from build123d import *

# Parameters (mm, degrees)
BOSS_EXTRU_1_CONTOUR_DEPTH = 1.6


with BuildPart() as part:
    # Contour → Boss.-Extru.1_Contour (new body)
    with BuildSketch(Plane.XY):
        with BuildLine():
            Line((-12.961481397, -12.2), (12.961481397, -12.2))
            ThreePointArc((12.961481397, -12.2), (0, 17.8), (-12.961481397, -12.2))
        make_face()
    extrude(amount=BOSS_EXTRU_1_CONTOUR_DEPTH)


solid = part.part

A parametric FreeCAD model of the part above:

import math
import FreeCAD as App
import Part
import Sketcher
from FreeCAD import Vector
Q = App.Units.Quantity

doc = App.newDocument("Part")
params = doc.addObject("Spreadsheet::Sheet", "Params")
for row, (alias, value) in enumerate([
    ("sketch1_radius", "17.8 mm"),
    ("pad1_length", "1.6 mm"),
], start=1):
    params.set(f"A{row}", alias)
    params.set(f"B{row}", "=" + value)
    params.setAlias(f"B{row}", alias)

body = doc.addObject("PartDesign::Body", "Body")

sketch1 = body.newObject("Sketcher::SketchObject", "Sketch")
sketch1.AttachmentSupport = (doc.getObject("XY_Plane"), [""])
sketch1.MapMode = "FlatFace"
sketch1.addGeometry([
    Part.LineSegment(Vector(-13, -12, 0), Vector(13, -12, 0)),
    Part.ArcOfCircle(Part.Circle(Vector(0, 0, 0), Vector(0, 0, 1), 18), math.radians(-43), math.radians(223)),
], False)
sketch1.addConstraint([
    Sketcher.Constraint("Coincident", 0, 1, 1, 2),
    Sketcher.Constraint("Coincident", 1, 1, 0, 2),
    Sketcher.Constraint("Horizontal", 0),
    Sketcher.Constraint("Coincident", 1, 3, -1, 1),
    Sketcher.Constraint("Radius", 1, Q("17.8 mm")),
    Sketcher.Constraint("DistanceY", 0, 1, -1, 1, Q("12.2 mm")),
])
sketch1.setExpression("Constraints[4]", "Params.sketch1_radius")
pad1 = body.newObject("PartDesign::Pad", "Pad")
pad1.Profile = sketch1
pad1.setExpression("Length", "Params.pad1_length")

doc.recompute()
